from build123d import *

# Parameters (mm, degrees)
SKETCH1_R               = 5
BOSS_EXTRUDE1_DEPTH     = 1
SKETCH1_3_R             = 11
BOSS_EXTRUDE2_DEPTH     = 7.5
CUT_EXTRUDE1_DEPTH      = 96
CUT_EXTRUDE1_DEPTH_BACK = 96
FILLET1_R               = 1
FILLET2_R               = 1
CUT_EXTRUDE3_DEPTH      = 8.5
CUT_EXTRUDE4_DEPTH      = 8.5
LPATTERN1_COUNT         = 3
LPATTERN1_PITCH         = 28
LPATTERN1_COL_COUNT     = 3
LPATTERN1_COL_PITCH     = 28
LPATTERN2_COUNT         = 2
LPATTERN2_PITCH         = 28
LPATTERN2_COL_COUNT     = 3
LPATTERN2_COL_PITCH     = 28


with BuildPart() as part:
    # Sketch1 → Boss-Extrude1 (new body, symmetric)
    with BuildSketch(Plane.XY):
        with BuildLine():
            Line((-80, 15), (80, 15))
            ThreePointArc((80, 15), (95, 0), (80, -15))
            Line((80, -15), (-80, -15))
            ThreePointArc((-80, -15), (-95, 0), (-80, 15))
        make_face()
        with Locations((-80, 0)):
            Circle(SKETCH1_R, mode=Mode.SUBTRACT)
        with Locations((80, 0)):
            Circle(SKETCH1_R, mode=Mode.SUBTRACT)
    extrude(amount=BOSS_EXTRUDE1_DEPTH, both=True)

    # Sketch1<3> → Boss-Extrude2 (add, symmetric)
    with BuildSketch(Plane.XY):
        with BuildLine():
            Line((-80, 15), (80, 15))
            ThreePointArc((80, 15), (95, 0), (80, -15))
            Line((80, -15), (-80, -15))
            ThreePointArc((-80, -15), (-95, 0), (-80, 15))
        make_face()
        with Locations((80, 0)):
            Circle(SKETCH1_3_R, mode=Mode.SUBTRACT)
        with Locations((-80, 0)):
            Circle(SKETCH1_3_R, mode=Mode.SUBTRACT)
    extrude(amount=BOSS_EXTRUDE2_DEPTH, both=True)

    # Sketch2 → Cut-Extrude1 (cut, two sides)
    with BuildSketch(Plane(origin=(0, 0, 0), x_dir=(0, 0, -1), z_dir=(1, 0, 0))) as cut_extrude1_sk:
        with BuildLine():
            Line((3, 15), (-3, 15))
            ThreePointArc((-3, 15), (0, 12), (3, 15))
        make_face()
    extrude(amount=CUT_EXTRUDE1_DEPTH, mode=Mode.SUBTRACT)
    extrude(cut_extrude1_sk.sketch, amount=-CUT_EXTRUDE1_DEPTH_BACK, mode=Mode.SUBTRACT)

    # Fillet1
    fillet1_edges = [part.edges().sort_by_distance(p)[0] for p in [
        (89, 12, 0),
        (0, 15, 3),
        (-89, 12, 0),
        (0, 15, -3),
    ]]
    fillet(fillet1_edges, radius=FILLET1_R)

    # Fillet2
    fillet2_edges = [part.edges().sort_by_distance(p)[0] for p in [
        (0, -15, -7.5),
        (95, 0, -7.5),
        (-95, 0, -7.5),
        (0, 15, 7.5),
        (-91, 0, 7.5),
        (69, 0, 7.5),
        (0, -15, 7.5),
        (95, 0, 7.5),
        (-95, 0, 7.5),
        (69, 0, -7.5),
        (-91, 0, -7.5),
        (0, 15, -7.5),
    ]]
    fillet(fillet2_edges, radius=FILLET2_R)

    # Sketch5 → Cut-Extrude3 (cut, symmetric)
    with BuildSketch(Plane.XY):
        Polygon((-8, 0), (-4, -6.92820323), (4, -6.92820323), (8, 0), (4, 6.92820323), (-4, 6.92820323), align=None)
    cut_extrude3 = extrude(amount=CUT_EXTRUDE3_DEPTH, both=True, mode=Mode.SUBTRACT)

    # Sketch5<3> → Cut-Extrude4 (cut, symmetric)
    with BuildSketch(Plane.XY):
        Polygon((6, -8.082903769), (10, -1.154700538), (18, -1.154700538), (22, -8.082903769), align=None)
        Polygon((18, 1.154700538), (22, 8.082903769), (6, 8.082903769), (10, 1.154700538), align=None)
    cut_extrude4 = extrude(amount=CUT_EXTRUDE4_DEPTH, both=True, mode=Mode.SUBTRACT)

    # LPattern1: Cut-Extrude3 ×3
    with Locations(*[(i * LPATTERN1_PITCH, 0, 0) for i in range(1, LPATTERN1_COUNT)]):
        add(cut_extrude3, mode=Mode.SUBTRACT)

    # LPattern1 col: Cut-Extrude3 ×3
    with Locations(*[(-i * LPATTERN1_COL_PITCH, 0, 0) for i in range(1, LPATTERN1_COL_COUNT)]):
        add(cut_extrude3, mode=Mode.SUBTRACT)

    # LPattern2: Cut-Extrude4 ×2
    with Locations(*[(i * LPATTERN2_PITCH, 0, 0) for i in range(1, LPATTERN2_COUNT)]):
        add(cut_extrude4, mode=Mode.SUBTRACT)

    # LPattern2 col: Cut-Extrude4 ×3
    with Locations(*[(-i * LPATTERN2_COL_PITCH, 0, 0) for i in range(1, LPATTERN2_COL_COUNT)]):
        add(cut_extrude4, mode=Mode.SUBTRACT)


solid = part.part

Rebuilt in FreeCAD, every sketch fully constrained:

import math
import FreeCAD as App
import Part
import Sketcher
Q = App.Units.Quantity


def edges_at(feature, points):
    """Names of the edges that pass closest to the given points."""
    edges = feature.Shape.Edges
    near = lambda p: min(range(len(edges)), key=lambda i: edges[i].distToShape(Part.Vertex(*p))[0])
    return sorted({f"Edge{near(p) + 1}" for p in points})

doc = App.newDocument("Part")
params = doc.addObject("Spreadsheet::Sheet", "Params")
for row, (alias, value) in enumerate([
    ("sketch1_diameter", "10 mm"),
    ("sketch1_radius", "15 mm"),
    ("sketch1_width", "160 mm"),
    ("pad1_length", "2 mm"),
    ("sketch2_diameter", "22 mm"),
    ("sketch2_radius", "15 mm"),
    ("sketch2_width", "160 mm"),
    ("pad2_length", "15 mm"),
    ("sketch3_radius", "3 mm"),
    ("fillet_radius", "1 mm"),
    ("fillet2_radius", "1 mm"),
    ("sketch4_width", "8 mm"),
    ("sketch4_length", "8 mm"),
    ("pocket2_length", "17 mm"),
    ("sketch5_width", "16 mm"),
    ("sketch5_width2", "8 mm"),
    ("pocket3_length", "17 mm"),
    ("linearpattern_pitch", "28 mm"),
    ("linearpattern2_pitch", "28 mm"),
    ("linearpattern3_pitch", "28 mm"),
    ("linearpattern4_pitch", "28 mm"),
], start=1):
    params.set(f"A{row}", alias)
    params.set(f"B{row}", "=" + value)
    params.setAlias(f"B{row}", alias)

body = doc.addObject("PartDesign::Body", "Body")

sketch1 = body.newObject("Sketcher::SketchObject", "Sketch")
sketch1.AttachmentSupport = (doc.getObject("XY_Plane"), [""])
sketch1.MapMode = "FlatFace"
sketch1.addGeometry([
    Part.LineSegment(App.Vector(80, 15, 0), App.Vector(-80, 15, 0)),
    Part.ArcOfCircle(Part.Circle(App.Vector(-80, 0, 0), App.Vector(0, 0, 1), 15), math.radians(90), math.radians(270)),
    Part.LineSegment(App.Vector(-80, -15, 0), App.Vector(80, -15, 0)),
    Part.ArcOfCircle(Part.Circle(App.Vector(80, 0, 0), App.Vector(0, 0, 1), 15), math.radians(-90), math.radians(90)),
    Part.Circle(App.Vector(80, 0, 0), App.Vector(0, 0, 1), 5),
    Part.Circle(App.Vector(-80, 0, 0), App.Vector(0, 0, 1), 5),
], False)
sketch1.addConstraint([
    Sketcher.Constraint("Tangent", 0, 2, 1, 1),
    Sketcher.Constraint("Tangent", 1, 2, 2, 1),
    Sketcher.Constraint("Tangent", 2, 2, 3, 1),
    Sketcher.Constraint("Tangent", 3, 2, 0, 1),
    Sketcher.Constraint("Horizontal", 0),
    Sketcher.Constraint("Horizontal", 2),
    Sketcher.Constraint("Coincident", 4, 3, 3, 3),
    Sketcher.Constraint("Coincident", 5, 3, 1, 3),
    Sketcher.Constraint("Equal", 4, 5),
    Sketcher.Constraint("Symmetric", 1, 3, 3, 3, -1, 1),
    Sketcher.Constraint("Diameter", 4, Q("10 mm")),
    Sketcher.Constraint("Radius", 1, Q("15 mm")),
    Sketcher.Constraint("DistanceX", 0, 2, 0, 1, Q("160 mm")),
])
sketch1.setExpression("Constraints[10]", "Params.sketch1_diameter")
sketch1.setExpression("Constraints[11]", "Params.sketch1_radius")
sketch1.setExpression("Constraints[12]", "Params.sketch1_width")
pad1 = body.newObject("PartDesign::Pad", "Pad")
pad1.Profile = sketch1
pad1.setExpression("Length", "Params.pad1_length")
pad1.Midplane = True

sketch2 = body.newObject("Sketcher::SketchObject", "Sketch001")
sketch2.AttachmentSupport = (doc.getObject("XY_Plane"), [""])
sketch2.MapMode = "FlatFace"
sketch2.addGeometry([
    Part.LineSegment(App.Vector(80, 15, 0), App.Vector(-80, 15, 0)),
    Part.ArcOfCircle(Part.Circle(App.Vector(-80, 0, 0), App.Vector(0, 0, 1), 15), math.radians(90), math.radians(270)),
    Part.LineSegment(App.Vector(-80, -15, 0), App.Vector(80, -15, 0)),
    Part.ArcOfCircle(Part.Circle(App.Vector(80, 0, 0), App.Vector(0, 0, 1), 15), math.radians(-90), math.radians(90)),
    Part.Circle(App.Vector(80, 0, 0), App.Vector(0, 0, 1), 11),
    Part.Circle(App.Vector(-80, 0, 0), App.Vector(0, 0, 1), 11),
], False)
sketch2.addConstraint([
    Sketcher.Constraint("Tangent", 0, 2, 1, 1),
    Sketcher.Constraint("Tangent", 1, 2, 2, 1),
    Sketcher.Constraint("Tangent", 2, 2, 3, 1),
    Sketcher.Constraint("Tangent", 3, 2, 0, 1),
    Sketcher.Constraint("Horizontal", 0),
    Sketcher.Constraint("Horizontal", 2),
    Sketcher.Constraint("Coincident", 4, 3, 3, 3),
    Sketcher.Constraint("Coincident", 5, 3, 1, 3),
    Sketcher.Constraint("Equal", 4, 5),
    Sketcher.Constraint("Symmetric", 1, 3, 3, 3, -1, 1),
    Sketcher.Constraint("Diameter", 4, Q("22 mm")),
    Sketcher.Constraint("Radius", 1, Q("15 mm")),
    Sketcher.Constraint("DistanceX", 0, 2, 0, 1, Q("160 mm")),
])
sketch2.setExpression("Constraints[10]", "Params.sketch2_diameter")
sketch2.setExpression("Constraints[11]", "Params.sketch2_radius")
sketch2.setExpression("Constraints[12]", "Params.sketch2_width")
pad2 = body.newObject("PartDesign::Pad", "Pad001")
pad2.Profile = sketch2
pad2.setExpression("Length", "Params.pad2_length")
pad2.Midplane = True

sketch3 = body.newObject("Sketcher::SketchObject", "Sketch002")
sketch3.AttachmentSupport = (doc.getObject("YZ_Plane"), [""])
sketch3.MapMode = "FlatFace"
sketch3.addGeometry([
    Part.LineSegment(App.Vector(15, -3, 0), App.Vector(15, 3, 0)),
    Part.ArcOfCircle(Part.Circle(App.Vector(15, 0, 0), App.Vector(0, 0, 1), 3), math.radians(90), math.radians(270)),
], False)
sketch3.addConstraint([
    Sketcher.Constraint("Coincident", 0, 1, 1, 2),
    Sketcher.Constraint("Coincident", 1, 1, 0, 2),
    Sketcher.Constraint("Vertical", 0),
    Sketcher.Constraint("PointOnObject", 1, 3, -1),
    Sketcher.Constraint("Vertical", 1, 3, 0, 1),
    Sketcher.Constraint("Radius", 1, Q("3 mm")),
    Sketcher.Constraint("DistanceX", -1, 1, 1, 3, Q("15 mm")),
])
sketch3.setExpression("Constraints[5]", "Params.sketch3_radius")
pocket1 = body.newObject("PartDesign::Pocket", "Pocket")
pocket1.Profile = sketch3
pocket1.Type = "ThroughAll"
pocket1.Midplane = True
doc.recompute()

fillet = body.newObject("PartDesign::Fillet", "Fillet")
fillet.Base = (pocket1, edges_at(pocket1, [
    (89, 12, 0),
    (0, 15, 3),
    (-89, 12, -0.001),
    (0, 15, -3),
]))
fillet.setExpression("Radius", "Params.fillet_radius")
doc.recompute()

fillet2 = body.newObject("PartDesign::Fillet", "Fillet001")
fillet2.Base = (fillet, edges_at(fillet, [
    (0, -15, -7.5),
    (95, 0, -7.5),
    (-95, 0, -7.5),
    (0, 15, 7.5),
    (-91, 0, 7.5),
    (69, 0, 7.5),
    (0, -15, 7.5),
    (95, 0, 7.5),
    (-95, 0, 7.5),
    (69, 0, -7.5),
    (-91, 0, -7.5),
    (0, 15, -7.5),
]))
fillet2.setExpression("Radius", "Params.fillet2_radius")

sketch4 = body.newObject("Sketcher::SketchObject", "Sketch003")
sketch4.AttachmentSupport = (doc.getObject("XY_Plane"), [""])
sketch4.MapMode = "FlatFace"
sketch4.addGeometry([
    Part.LineSegment(App.Vector(-8, 0, 0), App.Vector(-4, -7, 0)),
    Part.LineSegment(App.Vector(-4, -7, 0), App.Vector(4, -7, 0)),
    Part.LineSegment(App.Vector(4, -7, 0), App.Vector(8, 0, 0)),
    Part.LineSegment(App.Vector(8, 0, 0), App.Vector(4, 7, 0)),
    Part.LineSegment(App.Vector(4, 7, 0), App.Vector(-4, 7, 0)),
    Part.LineSegment(App.Vector(-4, 7, 0), App.Vector(-8, 0, 0)),
], False)
sketch4.addConstraint([
    Sketcher.Constraint("Coincident", 0, 2, 1, 1),
    Sketcher.Constraint("Coincident", 1, 2, 2, 1),
    Sketcher.Constraint("Coincident", 2, 2, 3, 1),
    Sketcher.Constraint("Coincident", 3, 2, 4, 1),
    Sketcher.Constraint("Coincident", 4, 2, 5, 1),
    Sketcher.Constraint("Coincident", 5, 2, 0, 1),
    Sketcher.Constraint("Horizontal", 1),
    Sketcher.Constraint("Horizontal", 4),
    Sketcher.Constraint("Symmetric", 0, 2, 3, 2, -1, 1),
    Sketcher.Constraint("Symmetric", 2, 2, 5, 2, -1, 1),
    Sketcher.Constraint("PointOnObject", 2, 2, -1),
    Sketcher.Constraint("Parallel", 2, 5),
    Sketcher.Constraint("Vertical", 1, 2, 3, 2),
    Sketcher.Constraint("DistanceX", 1, 1, 1, 2, Q("8 mm")),
    Sketcher.Constraint("Angle", 0, Q("-60 deg")),
    Sketcher.Constraint("Distance", 0, Q("8 mm")),
])
sketch4.setExpression("Constraints[13]", "Params.sketch4_width")
sketch4.setExpression("Constraints[15]", "Params.sketch4_length")
pocket2 = body.newObject("PartDesign::Pocket", "Pocket001")
pocket2.Profile = sketch4
pocket2.setExpression("Length", "Params.pocket2_length")
pocket2.Midplane = True

sketch5 = body.newObject("Sketcher::SketchObject", "Sketch004")
sketch5.AttachmentSupport = (doc.getObject("XY_Plane"), [""])
sketch5.MapMode = "FlatFace"
sketch5.addGeometry([
    Part.LineSegment(App.Vector(10, -1, 0), App.Vector(6, -8, 0)),
    Part.LineSegment(App.Vector(6, -8, 0), App.Vector(22, -8, 0)),
    Part.LineSegment(App.Vector(22, -8, 0), App.Vector(18, -1, 0)),
    Part.LineSegment(App.Vector(18, -1, 0), App.Vector(10, -1, 0)),
    Part.LineSegment(App.Vector(18, 1, 0), App.Vector(22, 8, 0)),
    Part.LineSegment(App.Vector(22, 8, 0), App.Vector(6, 8, 0)),
    Part.LineSegment(App.Vector(6, 8, 0), App.Vector(10, 1, 0)),
    Part.LineSegment(App.Vector(10, 1, 0), App.Vector(18, 1, 0)),
], False)
sketch5.addConstraint([
    Sketcher.Constraint("Coincident", 0, 2, 1, 1),
    Sketcher.Constraint("Coincident", 1, 2, 2, 1),
    Sketcher.Constraint("Coincident", 2, 2, 3, 1),
    Sketcher.Constraint("Coincident", 3, 2, 0, 1),
    Sketcher.Constraint("Coincident", 4, 2, 5, 1),
    Sketcher.Constraint("Coincident", 5, 2, 6, 1),
    Sketcher.Constraint("Coincident", 6, 2, 7, 1),
    Sketcher.Constraint("Coincident", 7, 2, 4, 1),
    Sketcher.Constraint("Horizontal", 1),
    Sketcher.Constraint("Horizontal", 3),
    Sketcher.Constraint("Horizontal", 5),
    Sketcher.Constraint("Horizontal", 7),
    Sketcher.Constraint("Symmetric", 1, 2, 4, 2, -1),
    Sketcher.Constraint("Symmetric", 3, 2, 6, 2, -1),
    Sketcher.Constraint("Parallel", 0, 4),
    Sketcher.Constraint("Parallel", 2, 6),
    Sketcher.Constraint("Vertical", 0, 2, 5, 2),
    Sketcher.Constraint("DistanceX", 1, 1, 1, 2, Q("16 mm")),
    Sketcher.Constraint("DistanceX", 3, 2, 3, 1, Q("8 mm")),
    Sketcher.Constraint("Angle", 0, Q("-120 deg")),
    Sketcher.Constraint("DistanceX", -1, 1, 0, 2, Q("6 mm")),
    Sketcher.Constraint("DistanceY", 2, 2, -1, 1, Q("1.154701 mm")),
])
sketch5.setExpression("Constraints[17]", "Params.sketch5_width")
sketch5.setExpression("Constraints[18]", "Params.sketch5_width2")
pocket3 = body.newObject("PartDesign::Pocket", "Pocket002")
pocket3.Profile = sketch5
pocket3.setExpression("Length", "Params.pocket3_length")
pocket3.Midplane = True
doc.recompute()

linearpattern = body.newObject("PartDesign::LinearPattern", "LinearPattern")
linearpattern.Originals = [pocket2]
linearpattern.Direction = (doc.getObject("X_Axis"), [""])
linearpattern.Mode = "offset"
linearpattern.setExpression("Offset", "Params.linearpattern_pitch")
linearpattern.Occurrences = 3
body.Tip = linearpattern
doc.recompute()

linearpattern2 = body.newObject("PartDesign::LinearPattern", "LinearPattern001")
linearpattern2.Originals = [pocket2]
linearpattern2.Direction = (doc.getObject("X_Axis"), [""])
linearpattern2.Mode = "offset"
linearpattern2.setExpression("Offset", "Params.linearpattern2_pitch")
linearpattern2.Occurrences = 3
linearpattern2.Reversed = True
body.Tip = linearpattern2
doc.recompute()

linearpattern3 = body.newObject("PartDesign::LinearPattern", "LinearPattern002")
linearpattern3.Originals = [pocket3]
linearpattern3.Direction = (doc.getObject("X_Axis"), [""])
linearpattern3.Mode = "offset"
linearpattern3.setExpression("Offset", "Params.linearpattern3_pitch")
linearpattern3.Occurrences = 2
body.Tip = linearpattern3
doc.recompute()

linearpattern4 = body.newObject("PartDesign::LinearPattern", "LinearPattern003")
linearpattern4.Originals = [pocket3]
linearpattern4.Direction = (doc.getObject("X_Axis"), [""])
linearpattern4.Mode = "offset"
linearpattern4.setExpression("Offset", "Params.linearpattern4_pitch")
linearpattern4.Occurrences = 3
linearpattern4.Reversed = True
body.Tip = linearpattern4

doc.recompute()
